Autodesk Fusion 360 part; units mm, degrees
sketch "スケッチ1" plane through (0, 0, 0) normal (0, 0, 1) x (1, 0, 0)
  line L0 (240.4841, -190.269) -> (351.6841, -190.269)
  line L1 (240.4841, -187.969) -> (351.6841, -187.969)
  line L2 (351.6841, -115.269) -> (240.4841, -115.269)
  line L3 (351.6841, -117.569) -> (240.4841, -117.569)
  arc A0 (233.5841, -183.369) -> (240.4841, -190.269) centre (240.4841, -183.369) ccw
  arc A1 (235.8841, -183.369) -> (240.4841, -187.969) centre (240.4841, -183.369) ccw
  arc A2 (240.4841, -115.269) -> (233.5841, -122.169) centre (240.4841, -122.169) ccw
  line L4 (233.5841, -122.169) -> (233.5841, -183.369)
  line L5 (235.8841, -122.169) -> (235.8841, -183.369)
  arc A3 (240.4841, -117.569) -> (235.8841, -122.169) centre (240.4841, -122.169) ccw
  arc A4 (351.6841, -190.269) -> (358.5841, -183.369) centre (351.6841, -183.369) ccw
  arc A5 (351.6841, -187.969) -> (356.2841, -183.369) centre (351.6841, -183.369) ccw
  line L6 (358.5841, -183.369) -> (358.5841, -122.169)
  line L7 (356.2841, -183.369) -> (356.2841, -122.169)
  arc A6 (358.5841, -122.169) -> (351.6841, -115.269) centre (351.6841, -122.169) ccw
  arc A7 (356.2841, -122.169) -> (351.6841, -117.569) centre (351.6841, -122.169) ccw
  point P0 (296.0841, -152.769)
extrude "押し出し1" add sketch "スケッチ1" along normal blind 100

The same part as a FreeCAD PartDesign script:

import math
import FreeCAD as App
import Part
import Sketcher

V = App.Vector

doc = App.newDocument("Part")
body = doc.addObject("PartDesign::Body", "Body")

# Sketch on XY plane
sketch1 = body.newObject("Sketcher::SketchObject", "Sketch")
sketch1.AttachmentSupport = (doc.getObject("XY_Plane"), [""])
sketch1.MapMode = "FlatFace"
sketch1.addGeometry(Part.ArcOfCircle(Part.Circle(V(240.5, -183.4, 0), V(0, 0, 1), 6.9), math.radians(180), math.radians(270)), False)
sketch1.addGeometry(Part.LineSegment(V(240.5, -190.3, 0), V(351.7, -190.3, 0)), False)
sketch1.addGeometry(Part.ArcOfCircle(Part.Circle(V(351.7, -183.4, 0), V(0, 0, 1), 6.9), math.radians(-90), math.radians(0)), False)
sketch1.addGeometry(Part.LineSegment(V(358.6, -183.4, 0), V(358.6, -122.2, 0)), False)
sketch1.addGeometry(Part.ArcOfCircle(Part.Circle(V(351.7, -122.2, 0), V(0, 0, 1), 6.9), math.radians(0), math.radians(90)), False)
sketch1.addGeometry(Part.LineSegment(V(351.7, -115.3, 0), V(240.5, -115.3, 0)), False)
sketch1.addGeometry(Part.ArcOfCircle(Part.Circle(V(240.5, -122.2, 0), V(0, 0, 1), 6.9), math.radians(90), math.radians(180)), False)
sketch1.addGeometry(Part.LineSegment(V(233.6, -122.2, 0), V(233.6, -183.4, 0)), False)
sketch1.addGeometry(Part.LineSegment(V(351.7, -188, 0), V(240.5, -188, 0)), False)
sketch1.addGeometry(Part.ArcOfCircle(Part.Circle(V(240.5, -183.4, 0), V(0, 0, 1), 4.6), math.radians(180), math.radians(270)), False)
sketch1.addGeometry(Part.LineSegment(V(235.9, -183.4, 0), V(235.9, -122.2, 0)), False)
sketch1.addGeometry(Part.ArcOfCircle(Part.Circle(V(240.5, -122.2, 0), V(0, 0, 1), 4.6), math.radians(90), math.radians(180)), False)
sketch1.addGeometry(Part.LineSegment(V(240.5, -117.6, 0), V(351.7, -117.6, 0)), False)
sketch1.addGeometry(Part.ArcOfCircle(Part.Circle(V(351.7, -122.2, 0), V(0, 0, 1), 4.6), math.radians(0), math.radians(90)), False)
sketch1.addGeometry(Part.LineSegment(V(356.3, -122.2, 0), V(356.3, -183.4, 0)), False)
sketch1.addGeometry(Part.ArcOfCircle(Part.Circle(V(351.7, -183.4, 0), V(0, 0, 1), 4.6), math.radians(-90), math.radians(0)), False)
sketch1.addConstraint(Sketcher.Constraint("Tangent", 0, 2, 1, 1))
sketch1.addConstraint(Sketcher.Constraint("Tangent", 1, 2, 2, 1))
sketch1.addConstraint(Sketcher.Constraint("Tangent", 2, 2, 3, 1))
sketch1.addConstraint(Sketcher.Constraint("Tangent", 3, 2, 4, 1))
sketch1.addConstraint(Sketcher.Constraint("Tangent", 4, 2, 5, 1))
sketch1.addConstraint(Sketcher.Constraint("Tangent", 5, 2, 6, 1))
sketch1.addConstraint(Sketcher.Constraint("Tangent", 6, 2, 7, 1))
sketch1.addConstraint(Sketcher.Constraint("Tangent", 7, 2, 0, 1))
sketch1.addConstraint(Sketcher.Constraint("Tangent", 8, 2, 9, 2))
sketch1.addConstraint(Sketcher.Constraint("Tangent", 9, 1, 10, 1))
sketch1.addConstraint(Sketcher.Constraint("Tangent", 10, 2, 11, 2))
sketch1.addConstraint(Sketcher.Constraint("Tangent", 11, 1, 12, 1))
sketch1.addConstraint(Sketcher.Constraint("Tangent", 12, 2, 13, 2))
sketch1.addConstraint(Sketcher.Constraint("Tangent", 13, 1, 14, 1))
sketch1.addConstraint(Sketcher.Constraint("Tangent", 14, 2, 15, 2))
sketch1.addConstraint(Sketcher.Constraint("Tangent", 15, 1, 8, 1))
sketch1.addConstraint(Sketcher.Constraint("Horizontal", 1))
sketch1.addConstraint(Sketcher.Constraint("Vertical", 3))
sketch1.addConstraint(Sketcher.Constraint("Horizontal", 5))
sketch1.addConstraint(Sketcher.Constraint("Vertical", 7))
sketch1.addConstraint(Sketcher.Constraint("Horizontal", 8))
sketch1.addConstraint(Sketcher.Constraint("Vertical", 10))
sketch1.addConstraint(Sketcher.Constraint("Horizontal", 12))
sketch1.addConstraint(Sketcher.Constraint("Vertical", 14))
sketch1.addConstraint(Sketcher.Constraint("Coincident", 9, 3, 0, 3))
sketch1.addConstraint(Sketcher.Constraint("Coincident", 11, 3, 6, 3))
sketch1.addConstraint(Sketcher.Constraint("Coincident", 13, 3, 4, 3))
sketch1.addConstraint(Sketcher.Constraint("Equal", 0, 2))
sketch1.addConstraint(Sketcher.Constraint("Equal", 2, 4))
sketch1.addConstraint(Sketcher.Constraint("Equal", 4, 6))
sketch1.addConstraint(Sketcher.Constraint("Equal", 13, 15))
sketch1.addConstraint(Sketcher.Constraint("Radius", 0, 6.9))
sketch1.addConstraint(Sketcher.Constraint("Radius", 9, 4.6))
sketch1.addConstraint(Sketcher.Constraint("DistanceX", 1, 1, 1, 2, 111.2))
sketch1.addConstraint(Sketcher.Constraint("DistanceY", 3, 1, 3, 2, 61.2))
sketch1.addConstraint(Sketcher.Constraint("DistanceX", -1, 1, 0, 3, 240.484))
sketch1.addConstraint(Sketcher.Constraint("DistanceY", 0, 3, -1, 1, 183.369))
pad1 = body.newObject("PartDesign::Pad", "Pad")
pad1.Profile = sketch1
pad1.Length = 100

doc.recompute()
